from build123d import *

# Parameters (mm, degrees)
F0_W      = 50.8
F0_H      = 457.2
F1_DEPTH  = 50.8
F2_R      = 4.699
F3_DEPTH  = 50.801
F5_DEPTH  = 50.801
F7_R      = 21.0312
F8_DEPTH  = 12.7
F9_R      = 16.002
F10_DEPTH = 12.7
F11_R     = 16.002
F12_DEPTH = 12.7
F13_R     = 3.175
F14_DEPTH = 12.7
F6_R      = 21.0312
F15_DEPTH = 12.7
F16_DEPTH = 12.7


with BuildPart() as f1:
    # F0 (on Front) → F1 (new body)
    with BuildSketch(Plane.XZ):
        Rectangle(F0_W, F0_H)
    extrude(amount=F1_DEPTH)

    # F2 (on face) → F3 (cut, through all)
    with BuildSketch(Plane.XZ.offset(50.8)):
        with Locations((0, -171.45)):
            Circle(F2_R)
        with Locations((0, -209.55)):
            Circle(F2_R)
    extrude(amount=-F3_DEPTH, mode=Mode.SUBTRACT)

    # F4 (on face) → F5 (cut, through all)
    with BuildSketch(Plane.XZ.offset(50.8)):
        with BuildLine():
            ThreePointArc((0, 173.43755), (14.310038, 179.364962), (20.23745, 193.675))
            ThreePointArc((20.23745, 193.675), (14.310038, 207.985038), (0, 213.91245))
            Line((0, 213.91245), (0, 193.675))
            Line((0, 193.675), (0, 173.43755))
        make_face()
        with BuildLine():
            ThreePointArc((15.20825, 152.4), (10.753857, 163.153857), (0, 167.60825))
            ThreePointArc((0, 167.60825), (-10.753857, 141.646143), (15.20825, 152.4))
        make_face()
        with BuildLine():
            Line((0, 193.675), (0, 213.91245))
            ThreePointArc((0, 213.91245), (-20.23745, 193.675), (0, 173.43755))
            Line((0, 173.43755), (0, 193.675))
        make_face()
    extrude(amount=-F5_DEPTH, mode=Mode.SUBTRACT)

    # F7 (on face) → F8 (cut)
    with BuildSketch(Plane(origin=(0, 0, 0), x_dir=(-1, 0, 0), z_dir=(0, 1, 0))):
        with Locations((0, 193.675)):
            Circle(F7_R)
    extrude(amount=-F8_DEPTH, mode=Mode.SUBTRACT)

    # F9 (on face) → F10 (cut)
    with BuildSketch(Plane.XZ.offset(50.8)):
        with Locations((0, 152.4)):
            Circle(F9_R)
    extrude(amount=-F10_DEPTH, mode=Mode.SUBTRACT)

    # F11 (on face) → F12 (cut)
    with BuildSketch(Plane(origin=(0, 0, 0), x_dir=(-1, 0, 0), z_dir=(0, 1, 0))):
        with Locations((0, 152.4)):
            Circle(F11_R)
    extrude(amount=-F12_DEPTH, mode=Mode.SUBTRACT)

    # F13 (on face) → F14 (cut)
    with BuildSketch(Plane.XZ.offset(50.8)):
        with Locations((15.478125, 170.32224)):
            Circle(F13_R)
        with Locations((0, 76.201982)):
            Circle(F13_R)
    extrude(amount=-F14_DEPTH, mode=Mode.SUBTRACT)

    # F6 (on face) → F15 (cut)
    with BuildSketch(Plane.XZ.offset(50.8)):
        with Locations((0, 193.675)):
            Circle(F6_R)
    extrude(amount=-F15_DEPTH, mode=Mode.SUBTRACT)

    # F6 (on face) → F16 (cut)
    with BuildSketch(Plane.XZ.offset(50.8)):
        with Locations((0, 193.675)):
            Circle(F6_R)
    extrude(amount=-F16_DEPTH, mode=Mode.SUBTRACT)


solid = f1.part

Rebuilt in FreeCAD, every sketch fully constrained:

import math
import FreeCAD as App
import Part
import Sketcher

V = App.Vector
Q = App.Units.Quantity


def add_polygon(sketch, points):
    """Adds a closed chain of lines whose ends are joined by coincident constraints."""
    first, n = sketch.GeometryCount, len(points)
    for a, b in zip(points, points[1:] + points[:1]):
        sketch.addGeometry(Part.LineSegment(App.Vector(*a, 0), App.Vector(*b, 0)), False)
    for i in range(n):
        sketch.addConstraint(Sketcher.Constraint("Coincident", first + i, 2, first + (i + 1) % n, 1))

doc = App.newDocument("Part")
params = doc.addObject("Spreadsheet::Sheet", "Params")
for row, (alias, value) in enumerate([
    ("sketch1_width", "2 in"),
    ("sketch1_height", "18 in"),
    ("pad1_length", "2 in"),
    ("sketch2_diameter", "0.37 in"),
    ("sketch4_diameter", "1.656 in"),
    ("pocket3_length", "0.5 in"),
    ("sketch5_diameter", "1.26 in"),
    ("pocket4_length", "0.5 in"),
    ("sketch6_diameter", "1.26 in"),
    ("pocket5_length", "0.5 in"),
    ("sketch7_diameter", "0.25 in"),
    ("pocket6_length", "0.5 in"),
    ("sketch8_diameter", "1.656 in"),
    ("pocket7_length", "0.5 in"),
    ("sketch9_diameter", "1.656 in"),
    ("pocket8_length", "0.5 in"),
], start=1):
    params.set(f"A{row}", alias)
    params.set(f"B{row}", "=" + value)
    params.setAlias(f"B{row}", alias)

body = doc.addObject("PartDesign::Body", "Body")

# Sketch on XZ plane
sketch1 = doc.addObject("Sketcher::SketchObject", "Sketch")
body.addObject(sketch1)
sketch1.AttachmentSupport = (doc.XZ_Plane, [""])
sketch1.MapMode = "FlatFace"
add_polygon(sketch1, [(-25.4, 228.6), (-25.4, -228.6), (25.4, -228.6), (25.4, 228.6)])  # lines 0-3
sketch1.addConstraint([
    Sketcher.Constraint("Vertical", 0),
    Sketcher.Constraint("Horizontal", 1),
    Sketcher.Constraint("Vertical", 2),
    Sketcher.Constraint("Horizontal", 3),
    Sketcher.Constraint("Symmetric", 0, 2, 2, 2, -1, 1),
    Sketcher.Constraint("DistanceX", 1, 1, 1, 2, Q("2 in")),
    Sketcher.Constraint("DistanceY", 0, 2, 0, 1, Q("18 in")),
])
sketch1.setExpression("Constraints[9]", "Params.sketch1_width")
sketch1.setExpression("Constraints[10]", "Params.sketch1_height")
pad1 = doc.addObject("PartDesign::Pad", "Pad")
body.addObject(pad1)
pad1.Profile = sketch1
pad1.setExpression("Length", "Params.pad1_length")

# Sketch on XZ plane
sketch2 = doc.addObject("Sketcher::SketchObject", "Sketch001")
body.addObject(sketch2)
sketch2.AttachmentSupport = (doc.XZ_Plane, [""])
sketch2.MapMode = "FlatFace"
sketch2.AttachmentOffset = App.Placement(V(0, 0, 2 * 25.4), App.Rotation())
sketch2.addGeometry([
    Part.Circle(V(0, -171.45, 0), V(0, 0, 1), 4.699),
    Part.Circle(V(0, -209.55, 0), V(0, 0, 1), 4.699),
], False)
sketch2.addConstraint([
    Sketcher.Constraint("Equal", 0, 1),
    Sketcher.Constraint("PointOnObject", 0, 3, -2),
    Sketcher.Constraint("PointOnObject", 1, 3, -2),
    Sketcher.Constraint("Diameter", 0, Q("0.37 in")),
    Sketcher.Constraint("DistanceY", 1, 3, 0, 3, Q("1.5 in")),
    Sketcher.Constraint("DistanceY", 0, 3, -1, 1, Q("6.75 in")),
])
sketch2.setExpression("Constraints[3]", "Params.sketch2_diameter")
pocket1 = doc.addObject("PartDesign::Pocket", "Pocket")
body.addObject(pocket1)
pocket1.Profile = sketch2
pocket1.Type = "ThroughAll"

# Sketch on XZ plane
sketch3 = doc.addObject("Sketcher::SketchObject", "Sketch002")
body.addObject(sketch3)
sketch3.AttachmentSupport = (doc.XZ_Plane, [""])
sketch3.MapMode = "FlatFace"
sketch3.AttachmentOffset = App.Placement(V(0, 0, 2 * 25.4), App.Rotation())
sketch3.addGeometry([
    Part.ArcOfCircle(Part.Circle(V(0, 193.675, 0), V(0, 0, 1), 20.23745), math.radians(-89.999999), math.radians(-0.000001)),  # 0
    Part.ArcOfCircle(Part.Circle(V(0, 193.675, 0), V(0, 0, 1), 20.23745), math.radians(0.000001), math.radians(89.999999)),  # 1
    Part.ArcOfCircle(Part.Circle(V(0, 193.675, 0), V(0, 0, 1), 20.23745), math.radians(90), math.radians(270)),  # 2
    Part.ArcOfCircle(Part.Circle(V(0.000001, 152.400001, 0), V(0, 0, 1), 15.208249), math.radians(-0.000004), math.radians(90.000004)),  # 3
    Part.ArcOfCircle(Part.Circle(V(0, 152.4, 0), V(0, 0, 1), 15.20825), math.radians(89.999999), math.radians(360.000001)),  # 4
], False)
sketch3.addConstraint([
    Sketcher.Constraint("Tangent", 0, 2, 1, 1),
    Sketcher.Constraint("Tangent", 1, 2, 2, 1),
    Sketcher.Constraint("Tangent", 2, 2, 0, 1),
    Sketcher.Constraint("Tangent", 3, 1, 4, 2),
    Sketcher.Constraint("Coincident", 4, 1, 3, 2),
    Sketcher.Constraint("PointOnObject", 0, 3, -2),
    Sketcher.Constraint("PointOnObject", 3, 3, -2),
    Sketcher.Constraint("PointOnObject", 1, 2, -2),
    Sketcher.Constraint("PointOnObject", 2, 2, -2),
    Sketcher.Constraint("PointOnObject", 4, 1, -2),
    Sketcher.Constraint("Horizontal", 2, 3, 0, 2),
    Sketcher.Constraint("Horizontal", 4, 3, 3, 1),
    Sketcher.Constraint("DistanceY", -1, 1, 3, 3, Q("6 in")),
    Sketcher.Constraint("DistanceY", -1, 1, 0, 3, Q("7.625 in")),
    Sketcher.Constraint("Radius", 0, Q("20.23745 mm")),
    Sketcher.Constraint("Radius", 3, Q("15.208249 mm")),
])
pocket2 = doc.addObject("PartDesign::Pocket", "Pocket001")
body.addObject(pocket2)
pocket2.Profile = sketch3
pocket2.Type = "ThroughAll"

# Sketch on XZ plane
sketch4 = doc.addObject("Sketcher::SketchObject", "Sketch003")
body.addObject(sketch4)
sketch4.AttachmentSupport = (doc.XZ_Plane, [""])
sketch4.MapMode = "FlatFace"
sketch4.addGeometry(Part.Circle(V(0, 193.675, 0), V(0, 0, 1), 21.0312), False)
sketch4.addConstraint([
    Sketcher.Constraint("PointOnObject", 0, 3, -2),
    Sketcher.Constraint("Diameter", 0, Q("1.656 in")),
    Sketcher.Constraint("DistanceY", -1, 1, 0, 3, Q("7.625 in")),
])
sketch4.setExpression("Constraints[1]", "Params.sketch4_diameter")
pocket3 = doc.addObject("PartDesign::Pocket", "Pocket002")
body.addObject(pocket3)
pocket3.Profile = sketch4
pocket3.setExpression("Length", "Params.pocket3_length")
pocket3.Reversed = True

# Sketch on XZ plane
sketch5 = doc.addObject("Sketcher::SketchObject", "Sketch004")
body.addObject(sketch5)
sketch5.AttachmentSupport = (doc.XZ_Plane, [""])
sketch5.MapMode = "FlatFace"
sketch5.AttachmentOffset = App.Placement(V(0, 0, 2 * 25.4), App.Rotation())
sketch5.addGeometry(Part.Circle(V(0, 152.4, 0), V(0, 0, 1), 16.002), False)
sketch5.addConstraint([
    Sketcher.Constraint("PointOnObject", 0, 3, -2),
    Sketcher.Constraint("Diameter", 0, Q("1.26 in")),
    Sketcher.Constraint("DistanceY", -1, 1, 0, 3, Q("6 in")),
])
sketch5.setExpression("Constraints[1]", "Params.sketch5_diameter")
pocket4 = doc.addObject("PartDesign::Pocket", "Pocket003")
body.addObject(pocket4)
pocket4.Profile = sketch5
pocket4.setExpression("Length", "Params.pocket4_length")

# Sketch on XZ plane
sketch6 = doc.addObject("Sketcher::SketchObject", "Sketch005")
body.addObject(sketch6)
sketch6.AttachmentSupport = (doc.XZ_Plane, [""])
sketch6.MapMode = "FlatFace"
sketch6.addGeometry(Part.Circle(V(0, 152.4, 0), V(0, 0, 1), 16.002), False)
sketch6.addConstraint([
    Sketcher.Constraint("PointOnObject", 0, 3, -2),
    Sketcher.Constraint("Diameter", 0, Q("1.26 in")),
    Sketcher.Constraint("DistanceY", -1, 1, 0, 3, Q("6 in")),
])
sketch6.setExpression("Constraints[1]", "Params.sketch6_diameter")
pocket5 = doc.addObject("PartDesign::Pocket", "Pocket004")
body.addObject(pocket5)
pocket5.Profile = sketch6
pocket5.setExpression("Length", "Params.pocket5_length")
pocket5.Reversed = True

# Sketch on XZ plane
sketch7 = doc.addObject("Sketcher::SketchObject", "Sketch006")
body.addObject(sketch7)
sketch7.AttachmentSupport = (doc.XZ_Plane, [""])
sketch7.MapMode = "FlatFace"
sketch7.AttachmentOffset = App.Placement(V(0, 0, 2 * 25.4), App.Rotation())
sketch7.addGeometry([
    Part.Circle(V(15.478125, 170.32224, 0), V(0, 0, 1), 3.175),
    Part.Circle(V(0, 76.201982, 0), V(0, 0, 1), 3.175),
], False)
sketch7.addConstraint([
    Sketcher.Constraint("Equal", 0, 1),
    Sketcher.Constraint("PointOnObject", 1, 3, -2),
    Sketcher.Constraint("Diameter", 0, Q("0.25 in")),
    Sketcher.Constraint("DistanceX", -1, 1, 0, 3, Q("0.609375 in")),
    Sketcher.Constraint("DistanceY", -1, 1, 0, 3, Q("6.7056 in")),
    Sketcher.Constraint("DistanceY", -1, 1, 1, 3, Q("76.201982 mm")),
])
sketch7.setExpression("Constraints[2]", "Params.sketch7_diameter")
pocket6 = doc.addObject("PartDesign::Pocket", "Pocket005")
body.addObject(pocket6)
pocket6.Profile = sketch7
pocket6.setExpression("Length", "Params.pocket6_length")

# Sketch on XZ plane
sketch8 = doc.addObject("Sketcher::SketchObject", "Sketch007")
body.addObject(sketch8)
sketch8.AttachmentSupport = (doc.XZ_Plane, [""])
sketch8.MapMode = "FlatFace"
sketch8.AttachmentOffset = App.Placement(V(0, 0, 2 * 25.4), App.Rotation())
sketch8.addGeometry(Part.Circle(V(0, 193.675, 0), V(0, 0, 1), 21.0312), False)
sketch8.addConstraint([
    Sketcher.Constraint("PointOnObject", 0, 3, -2),
    Sketcher.Constraint("Diameter", 0, Q("1.656 in")),
    Sketcher.Constraint("DistanceY", -1, 1, 0, 3, Q("7.625 in")),
])
sketch8.setExpression("Constraints[1]", "Params.sketch8_diameter")
pocket7 = doc.addObject("PartDesign::Pocket", "Pocket006")
body.addObject(pocket7)
pocket7.Profile = sketch8
pocket7.setExpression("Length", "Params.pocket7_length")

# Sketch on XZ plane
sketch9 = doc.addObject("Sketcher::SketchObject", "Sketch008")
body.addObject(sketch9)
sketch9.AttachmentSupport = (doc.XZ_Plane, [""])
sketch9.MapMode = "FlatFace"
sketch9.AttachmentOffset = App.Placement(V(0, 0, 2 * 25.4), App.Rotation())
sketch9.addGeometry(Part.Circle(V(0, 193.675, 0), V(0, 0, 1), 21.0312), False)
sketch9.addConstraint([
    Sketcher.Constraint("PointOnObject", 0, 3, -2),
    Sketcher.Constraint("Diameter", 0, Q("1.656 in")),
    Sketcher.Constraint("DistanceY", -1, 1, 0, 3, Q("7.625 in")),
])
sketch9.setExpression("Constraints[1]", "Params.sketch9_diameter")
pocket8 = doc.addObject("PartDesign::Pocket", "Pocket007")
body.addObject(pocket8)
pocket8.Profile = sketch9
pocket8.setExpression("Length", "Params.pocket8_length")

doc.recompute()
